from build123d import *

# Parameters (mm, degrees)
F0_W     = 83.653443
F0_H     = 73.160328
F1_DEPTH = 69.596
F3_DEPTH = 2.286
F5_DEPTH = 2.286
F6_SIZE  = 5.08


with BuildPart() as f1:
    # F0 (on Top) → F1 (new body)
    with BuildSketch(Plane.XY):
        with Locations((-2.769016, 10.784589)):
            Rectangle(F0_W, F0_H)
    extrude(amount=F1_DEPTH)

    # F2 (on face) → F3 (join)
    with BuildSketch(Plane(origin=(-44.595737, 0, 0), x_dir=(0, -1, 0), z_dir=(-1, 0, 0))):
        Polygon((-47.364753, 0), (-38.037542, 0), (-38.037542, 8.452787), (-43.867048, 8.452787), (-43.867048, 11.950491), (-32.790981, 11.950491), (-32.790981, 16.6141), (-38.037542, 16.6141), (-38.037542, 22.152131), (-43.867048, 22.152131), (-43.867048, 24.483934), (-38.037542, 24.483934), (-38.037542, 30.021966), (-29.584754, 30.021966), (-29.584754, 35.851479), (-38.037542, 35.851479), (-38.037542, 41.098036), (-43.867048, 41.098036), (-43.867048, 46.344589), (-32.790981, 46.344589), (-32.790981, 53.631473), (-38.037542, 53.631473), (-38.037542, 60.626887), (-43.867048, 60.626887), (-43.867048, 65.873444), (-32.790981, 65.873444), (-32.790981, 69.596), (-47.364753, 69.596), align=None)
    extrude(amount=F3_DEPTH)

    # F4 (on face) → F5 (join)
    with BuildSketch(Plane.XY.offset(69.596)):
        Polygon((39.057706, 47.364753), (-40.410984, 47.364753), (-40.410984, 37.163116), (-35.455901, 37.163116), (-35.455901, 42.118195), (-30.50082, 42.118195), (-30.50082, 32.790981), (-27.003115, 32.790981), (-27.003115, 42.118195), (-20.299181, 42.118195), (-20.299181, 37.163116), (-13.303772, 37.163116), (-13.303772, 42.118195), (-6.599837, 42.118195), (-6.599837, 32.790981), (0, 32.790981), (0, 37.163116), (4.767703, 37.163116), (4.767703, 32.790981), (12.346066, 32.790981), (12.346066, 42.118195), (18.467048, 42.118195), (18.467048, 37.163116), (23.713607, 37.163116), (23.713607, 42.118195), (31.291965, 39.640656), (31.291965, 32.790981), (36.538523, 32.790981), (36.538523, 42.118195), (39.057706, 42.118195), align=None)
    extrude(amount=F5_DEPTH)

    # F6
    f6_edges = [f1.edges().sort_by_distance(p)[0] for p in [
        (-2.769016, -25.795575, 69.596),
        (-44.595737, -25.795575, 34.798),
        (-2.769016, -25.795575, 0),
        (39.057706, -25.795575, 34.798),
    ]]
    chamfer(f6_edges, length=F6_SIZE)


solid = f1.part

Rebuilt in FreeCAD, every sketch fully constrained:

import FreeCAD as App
import Part
import Sketcher
Q = App.Units.Quantity


def edges_at(feature, points):
    """Names of the edges that pass closest to the given points."""
    edges = feature.Shape.Edges
    near = lambda p: min(range(len(edges)), key=lambda i: edges[i].distToShape(Part.Vertex(*p))[0])
    return sorted({f"Edge{near(p) + 1}" for p in points})


def add_polygon(sketch, points):
    """Adds a closed chain of lines whose ends are joined by coincident constraints."""
    first, n = sketch.GeometryCount, len(points)
    for a, b in zip(points, points[1:] + points[:1]):
        sketch.addGeometry(Part.LineSegment(App.Vector(*a, 0), App.Vector(*b, 0)), False)
    for i in range(n):
        sketch.addConstraint(Sketcher.Constraint("Coincident", first + i, 2, first + (i + 1) % n, 1))

doc = App.newDocument("Part")
body = doc.addObject("PartDesign::Body", "Body")

sketch1 = body.newObject("Sketcher::SketchObject", "Sketch")
sketch1.AttachmentSupport = (doc.getObject("XY_Plane"), [""])
sketch1.MapMode = "FlatFace"
add_polygon(sketch1, [(-45, 47), (-45, -26), (39, -26), (39, 47)])
sketch1.addConstraint([
    Sketcher.Constraint("Vertical", 0),
    Sketcher.Constraint("Horizontal", 1),
    Sketcher.Constraint("Vertical", 2),
    Sketcher.Constraint("Horizontal", 3),
    Sketcher.Constraint("DistanceX", 1, 1, 1, 2, 83.653443),
    Sketcher.Constraint("DistanceY", 0, 2, 0, 1, 73.160328),
    Sketcher.Constraint("DistanceX", 0, 2, -1, 1, 44.595737),
    Sketcher.Constraint("DistanceY", 0, 2, -1, 1, 25.795575),
])
pad1 = body.newObject("PartDesign::Pad", "Pad")
pad1.Profile = sketch1
pad1.Length = Q("2.74 in")

sketch2 = body.newObject("Sketcher::SketchObject", "Sketch001")
sketch2.AttachmentSupport = (doc.getObject("YZ_Plane"), [""])
sketch2.MapMode = "FlatFace"
sketch2.AttachmentOffset = App.Placement(App.Vector(0, 0, -44.595737), App.Rotation())
add_polygon(sketch2, [(47.4, 0), (38, 0), (38, 8.5), (43.9, 8.5), (43.9, 12), (32.8, 12), (32.8, 16.6), (38, 16.6), (38, 22.2), (43.9, 22.2), (43.9, 24.5), (38, 24.5), (38, 30), (29.6, 30), (29.6, 35.9), (38, 35.9), (38, 41.1), (43.9, 41.1), (43.9, 46.3), (32.8, 46.3), (32.8, 53.6), (38, 53.6), (38, 60.6), (43.9, 60.6), (43.9, 65.9), (32.8, 65.9), (32.8, 69.6), (47.4, 69.6)])
sketch2.addConstraint([
    Sketcher.Constraint("Horizontal", 0),
    Sketcher.Constraint("Vertical", 1),
    Sketcher.Constraint("Horizontal", 2),
    Sketcher.Constraint("Vertical", 3),
    Sketcher.Constraint("Horizontal", 4),
    Sketcher.Constraint("Vertical", 5),
    Sketcher.Constraint("Horizontal", 6),
    Sketcher.Constraint("Vertical", 7),
    Sketcher.Constraint("Horizontal", 8),
    Sketcher.Constraint("Vertical", 9),
    Sketcher.Constraint("Horizontal", 10),
    Sketcher.Constraint("Vertical", 11),
    Sketcher.Constraint("Horizontal", 12),
    Sketcher.Constraint("Vertical", 13),
    Sketcher.Constraint("Horizontal", 14),
    Sketcher.Constraint("Vertical", 15),
    Sketcher.Constraint("Horizontal", 16),
    Sketcher.Constraint("Vertical", 17),
    Sketcher.Constraint("Horizontal", 18),
    Sketcher.Constraint("Vertical", 19),
    Sketcher.Constraint("Horizontal", 20),
    Sketcher.Constraint("Vertical", 21),
    Sketcher.Constraint("Horizontal", 22),
    Sketcher.Constraint("Vertical", 23),
    Sketcher.Constraint("Horizontal", 24),
    Sketcher.Constraint("Vertical", 25),
    Sketcher.Constraint("Horizontal", 26),
    Sketcher.Constraint("Vertical", 27),
    Sketcher.Constraint("PointOnObject", 0, 2, -1),
    Sketcher.Constraint("Vertical", 1, 2, 6, 2),
    Sketcher.Constraint("Vertical", 3, 2, 8, 2),
    Sketcher.Constraint("Vertical", 7, 2, 10, 2),
    Sketcher.Constraint("Vertical", 11, 2, 14, 2),
    Sketcher.Constraint("Vertical", 9, 2, 16, 2),
    Sketcher.Constraint("Vertical", 5, 2, 18, 2),
    Sketcher.Constraint("Vertical", 15, 2, 20, 2),
    Sketcher.Constraint("Vertical", 17, 2, 22, 2),
    Sketcher.Constraint("Vertical", 19, 2, 24, 2),
    Sketcher.Constraint("Equal", 14, 1),
    Sketcher.Constraint("Equal", 7, 11),
    Sketcher.Constraint("Equal", 15, 23),
    Sketcher.Constraint("DistanceY", 27, 2, 27, 1, Q("2.74 in")),
    Sketcher.Constraint("DistanceX", 0, 2, 0, 1, 9.327211),
    Sketcher.Constraint("DistanceX", 6, 1, 6, 2, 5.246561),
    Sketcher.Constraint("DistanceX", 12, 2, 12, 1, 8.452788),
    Sketcher.Constraint("DistanceY", 5, 1, 5, 2, 4.663609),
    Sketcher.Constraint("DistanceY", 7, 1, 7, 2, 5.538031),
    Sketcher.Constraint("DistanceY", -1, 1, 5, 2, 16.6141),
    Sketcher.Constraint("DistanceY", 10, 2, 15, 2, 16.614102),
    Sketcher.Constraint("DistanceY", 18, 2, 21, 2, 14.282298),
    Sketcher.Constraint("DistanceX", 2, 1, 2, 2, 5.829506),
    Sketcher.Constraint("DistanceY", 9, 1, 9, 2, 2.331803),
    Sketcher.Constraint("DistanceY", 13, 1, 13, 2, 5.829513),
    Sketcher.Constraint("DistanceY", 17, 1, 17, 2, 5.246553),
    Sketcher.Constraint("DistanceY", 19, 1, 19, 2, 7.286884),
    Sketcher.Constraint("DistanceX", -1, 1, 4, 2, 32.790981),
])
pad2 = body.newObject("PartDesign::Pad", "Pad001")
pad2.Profile = sketch2
pad2.Length = Q("0.09 in")
pad2.Reversed = True

sketch3 = body.newObject("Sketcher::SketchObject", "Sketch002")
sketch3.AttachmentSupport = (doc.getObject("XY_Plane"), [""])
sketch3.MapMode = "FlatFace"
sketch3.AttachmentOffset = App.Placement(App.Vector(0, 0, 2.74 * 25.4), App.Rotation())
add_polygon(sketch3, [(39.1, 47.4), (-40.4, 47.4), (-40.4, 37.2), (-35.5, 37.2), (-35.5, 42.1), (-30.5, 42.1), (-30.5, 32.8), (-27, 32.8), (-27, 42.1), (-20.3, 42.1), (-20.3, 37.2), (-13.3, 37.2), (-13.3, 42.1), (-6.6, 42.1), (-6.6, 32.8), (0, 32.8), (0, 37.2), (4.8, 37.2), (4.8, 32.8), (12.3, 32.8), (12.3, 42.1), (18.5, 42.1), (18.5, 37.2), (23.7, 37.2), (23.7, 42.1), (31.3, 39.6), (31.3, 32.8), (36.5, 32.8), (36.5, 42.1), (39.1, 42.1)])
sketch3.addConstraint([
    Sketcher.Constraint("Horizontal", 0),
    Sketcher.Constraint("Vertical", 1),
    Sketcher.Constraint("Horizontal", 2),
    Sketcher.Constraint("Vertical", 3),
    Sketcher.Constraint("Horizontal", 4),
    Sketcher.Constraint("Vertical", 5),
    Sketcher.Constraint("Horizontal", 6),
    Sketcher.Constraint("Vertical", 7),
    Sketcher.Constraint("Horizontal", 8),
    Sketcher.Constraint("Vertical", 9),
    Sketcher.Constraint("Horizontal", 10),
    Sketcher.Constraint("Vertical", 11),
    Sketcher.Constraint("Horizontal", 12),
    Sketcher.Constraint("Vertical", 13),
    Sketcher.Constraint("Horizontal", 14),
    Sketcher.Constraint("Vertical", 15),
    Sketcher.Constraint("Horizontal", 16),
    Sketcher.Constraint("Vertical", 17),
    Sketcher.Constraint("Horizontal", 18),
    Sketcher.Constraint("Vertical", 19),
    Sketcher.Constraint("Horizontal", 20),
    Sketcher.Constraint("Vertical", 21),
    Sketcher.Constraint("Horizontal", 22),
    Sketcher.Constraint("Vertical", 23),
    Sketcher.Constraint("Vertical", 25),
    Sketcher.Constraint("Horizontal", 26),
    Sketcher.Constraint("Vertical", 27),
    Sketcher.Constraint("Horizontal", 28),
    Sketcher.Constraint("Vertical", 29),
    Sketcher.Constraint("PointOnObject", 14, 2, -2),
    Sketcher.Constraint("Horizontal", 4, 2, 7, 2),
    Sketcher.Constraint("Horizontal", 2, 2, 9, 2),
    Sketcher.Constraint("Horizontal", 8, 2, 11, 2),
    Sketcher.Constraint("Horizontal", 6, 2, 13, 2),
    Sketcher.Constraint("Horizontal", 10, 2, 15, 2),
    Sketcher.Constraint("Horizontal", 14, 2, 17, 2),
    Sketcher.Constraint("Horizontal", 12, 2, 19, 2),
    Sketcher.Constraint("Horizontal", 16, 2, 21, 2),
    Sketcher.Constraint("Horizontal", 20, 2, 23, 2),
    Sketcher.Constraint("Horizontal", 18, 2, 25, 2),
    Sketcher.Constraint("Horizontal", 23, 2, 27, 2),
    Sketcher.Constraint("Equal", 8, 12),
    Sketcher.Constraint("Equal", 22, 26),
    Sketcher.Constraint("Equal", 4, 3),
    Sketcher.Constraint("Equal", 26, 29),
    Sketcher.Constraint("Distance", 24, Q("0.3139001 in")),
    Sketcher.Constraint("DistanceX", 0, 2, 0, 1, 79.46869),
    Sketcher.Constraint("DistanceX", 4, 1, 4, 2, 4.955081),
    Sketcher.Constraint("DistanceX", 10, 1, 10, 2, 6.995409),
    Sketcher.Constraint("DistanceX", 20, 1, 20, 2, 6.120982),
    Sketcher.Constraint("DistanceX", 22, 1, 22, 2, 5.246559),
    Sketcher.Constraint("DistanceX", 2, 2, -1, 1, 35.455901),
    Sketcher.Constraint("DistanceX", 19, 2, 24, 2, 18.945899),
    Sketcher.Constraint("DistanceX", 23, 2, 28, 2, 15.344099),
    Sketcher.Constraint("DistanceX", 2, 1, 2, 2, 4.955083),
    Sketcher.Constraint("DistanceX", 6, 1, 6, 2, 3.497705),
    Sketcher.Constraint("DistanceX", 8, 1, 8, 2, 6.703934),
    Sketcher.Constraint("DistanceX", 16, 1, 16, 2, 4.767703),
    Sketcher.Constraint("DistanceY", 5, 2, 5, 1, 9.327214),
    Sketcher.Constraint("DistanceY", -1, 1, 5, 2, 32.790981),
])
pad3 = body.newObject("PartDesign::Pad", "Pad002")
pad3.Profile = sketch3
pad3.Length = Q("0.09 in")
doc.recompute()

chamfer = body.newObject("PartDesign::Chamfer", "Chamfer")
chamfer.Base = (pad3, edges_at(pad3, [
    (-2.769, -25.796, 69.596),
    (-44.596, -25.796, 34.798),
    (-2.769, -25.796, 0),
    (39.058, -25.796, 34.798),
]))
chamfer.Size = Q("0.2 in")

doc.recompute()
